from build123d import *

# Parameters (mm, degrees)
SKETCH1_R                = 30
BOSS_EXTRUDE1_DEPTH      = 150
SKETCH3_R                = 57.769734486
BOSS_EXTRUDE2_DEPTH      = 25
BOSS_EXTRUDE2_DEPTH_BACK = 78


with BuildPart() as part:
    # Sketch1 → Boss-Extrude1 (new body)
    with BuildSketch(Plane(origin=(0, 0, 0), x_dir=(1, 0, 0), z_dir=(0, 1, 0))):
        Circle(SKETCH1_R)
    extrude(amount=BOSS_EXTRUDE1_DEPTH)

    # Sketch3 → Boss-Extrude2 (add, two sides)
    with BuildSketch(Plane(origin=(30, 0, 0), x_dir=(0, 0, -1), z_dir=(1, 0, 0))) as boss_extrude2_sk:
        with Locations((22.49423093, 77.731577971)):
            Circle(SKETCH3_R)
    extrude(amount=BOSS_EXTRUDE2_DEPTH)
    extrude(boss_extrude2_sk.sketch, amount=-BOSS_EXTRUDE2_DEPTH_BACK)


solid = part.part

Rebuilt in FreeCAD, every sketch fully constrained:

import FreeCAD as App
import Part
import Sketcher

V = App.Vector

doc = App.newDocument("Part")
body = doc.addObject("PartDesign::Body", "Body")

# Sketch on XZ plane
sketch1 = body.newObject("Sketcher::SketchObject", "Sketch")
sketch1.AttachmentSupport = (doc.getObject("XZ_Plane"), [""])
sketch1.MapMode = "FlatFace"
sketch1.addGeometry(Part.Circle(V(0, 0, 0), V(0, 0, 1), 30), False)
sketch1.addConstraint([
    Sketcher.Constraint("Coincident", 0, 3, -1, 1),
    Sketcher.Constraint("Diameter", 0, 60.0),
])
pad1 = body.newObject("PartDesign::Pad", "Pad")
pad1.Profile = sketch1
pad1.Length = 150
pad1.Reversed = True

# Sketch on YZ plane
sketch2 = body.newObject("Sketcher::SketchObject", "Sketch001")
sketch2.AttachmentSupport = (doc.getObject("YZ_Plane"), [""])
sketch2.MapMode = "FlatFace"
sketch2.AttachmentOffset = App.Placement(V(0, 0, 30), App.Rotation())
sketch2.addGeometry(Part.Circle(V(77.731578, -22.494231, 0), V(0, 0, 1), 57.769734), False)
sketch2.addConstraint([
    Sketcher.Constraint("Diameter", 0, 115.539469),
    Sketcher.Constraint("DistanceY", 0, 3, -1, 1, 22.494231),
    Sketcher.Constraint("DistanceX", -1, 1, 0, 3, 77.731578),
])
pad2 = body.newObject("PartDesign::Pad", "Pad001")
pad2.Profile = sketch2
pad2.Type = "TwoLengths"
pad2.Length = 25
pad2.Length2 = 78

doc.recompute()
